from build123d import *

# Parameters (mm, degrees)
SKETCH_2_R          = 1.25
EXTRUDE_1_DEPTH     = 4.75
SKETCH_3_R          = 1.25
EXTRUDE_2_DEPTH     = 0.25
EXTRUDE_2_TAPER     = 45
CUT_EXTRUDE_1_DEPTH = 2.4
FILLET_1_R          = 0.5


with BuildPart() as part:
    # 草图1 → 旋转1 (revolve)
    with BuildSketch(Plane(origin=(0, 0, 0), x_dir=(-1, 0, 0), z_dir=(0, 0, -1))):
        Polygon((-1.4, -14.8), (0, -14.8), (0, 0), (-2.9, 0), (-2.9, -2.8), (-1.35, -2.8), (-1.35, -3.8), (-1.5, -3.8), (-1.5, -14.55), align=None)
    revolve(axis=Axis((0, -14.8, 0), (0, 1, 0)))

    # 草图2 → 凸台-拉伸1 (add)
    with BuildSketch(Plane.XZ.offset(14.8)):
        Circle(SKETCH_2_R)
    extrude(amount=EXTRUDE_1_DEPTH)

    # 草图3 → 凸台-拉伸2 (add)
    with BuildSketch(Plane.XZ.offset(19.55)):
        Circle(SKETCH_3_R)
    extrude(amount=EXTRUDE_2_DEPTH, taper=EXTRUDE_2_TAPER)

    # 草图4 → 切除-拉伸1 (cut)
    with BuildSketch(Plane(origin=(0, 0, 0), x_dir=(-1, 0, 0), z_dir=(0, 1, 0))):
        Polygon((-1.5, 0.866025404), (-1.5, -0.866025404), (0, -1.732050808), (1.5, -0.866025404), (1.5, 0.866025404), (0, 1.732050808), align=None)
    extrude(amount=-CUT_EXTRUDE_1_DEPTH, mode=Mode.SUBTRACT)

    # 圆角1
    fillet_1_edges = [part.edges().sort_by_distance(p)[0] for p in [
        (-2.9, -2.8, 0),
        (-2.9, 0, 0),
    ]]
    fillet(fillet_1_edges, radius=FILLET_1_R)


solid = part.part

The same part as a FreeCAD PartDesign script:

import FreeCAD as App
import Part
import Sketcher

V = App.Vector
Q = App.Units.Quantity


def edges_at(feature, points):
    """Names of the edges that pass closest to the given points."""
    edges = feature.Shape.Edges
    near = lambda p: min(range(len(edges)), key=lambda i: edges[i].distToShape(Part.Vertex(*p))[0])
    return sorted({f"Edge{near(p) + 1}" for p in points})


def add_polygon(sketch, points):
    """Adds a closed chain of lines whose ends are joined by coincident constraints."""
    first, n = sketch.GeometryCount, len(points)
    for a, b in zip(points, points[1:] + points[:1]):
        sketch.addGeometry(Part.LineSegment(App.Vector(*a, 0), App.Vector(*b, 0)), False)
    for i in range(n):
        sketch.addConstraint(Sketcher.Constraint("Coincident", first + i, 2, first + (i + 1) % n, 1))

doc = App.newDocument("Part")
params = doc.addObject("Spreadsheet::Sheet", "Params")
for row, (alias, value) in enumerate([
    ("sketch1_height", "1 mm"),
    ("sketch1_width", "1.4 mm"),
    ("sketch1_width2", "2.9 mm"),
    ("sketch1_height2", "14.8 mm"),
    ("sketch1_height3", "2.8 mm"),
    ("revolution_angle", "360 deg"),
    ("sketch2_diameter", "2.5 mm"),
    ("pad1_length", "4.75 mm"),
    ("sketch3_diameter", "2.5 mm"),
    ("pad2_length", "0.25 mm"),
    ("pad2_taper", "-45 deg"),
    ("pocket1_length", "2.4 mm"),
    ("fillet_radius", "0.5 mm"),
], start=1):
    params.set(f"A{row}", alias)
    params.set(f"B{row}", "=" + value)
    params.setAlias(f"B{row}", alias)

body = doc.addObject("PartDesign::Body", "Body")

# Sketch on XY plane
sketch1 = body.newObject("Sketcher::SketchObject", "Sketch")
sketch1.AttachmentSupport = (doc.getObject("XY_Plane"), [""])
sketch1.MapMode = "FlatFace"
add_polygon(sketch1, [(1.4, -14.8), (0, -14.8), (0, 0), (2.9, 0), (2.9, -2.8), (1.35, -2.8), (1.35, -3.8), (1.5, -3.8), (1.5, -14.55)])  # lines 0-8
sketch1.addConstraint([
    Sketcher.Constraint("Horizontal", 0),
    Sketcher.Constraint("Vertical", 1),
    Sketcher.Constraint("Horizontal", 2),
    Sketcher.Constraint("Vertical", 3),
    Sketcher.Constraint("Horizontal", 4),
    Sketcher.Constraint("Vertical", 5),
    Sketcher.Constraint("Horizontal", 6),
    Sketcher.Constraint("Vertical", 7),
    Sketcher.Constraint("Coincident", 1, 2, -1, 1),
    Sketcher.Constraint("DistanceY", 5, 2, 5, 1, 1.0),
    Sketcher.Constraint("DistanceX", 0, 2, 0, 1, 1.4),
    Sketcher.Constraint("DistanceX", 2, 1, 2, 2, 2.9),
    Sketcher.Constraint("DistanceY", 1, 1, 1, 2, 14.8),
    Sketcher.Constraint("DistanceY", 3, 2, 3, 1, 2.8),
    Sketcher.Constraint("DistanceX", 4, 2, 4, 1, 1.55),
    Sketcher.Constraint("DistanceX", 6, 1, 6, 2, 0.15),
    Sketcher.Constraint("DistanceY", 7, 2, 7, 1, 10.75),
])
sketch1.setExpression("Constraints[18]", "Params.sketch1_height")
sketch1.setExpression("Constraints[19]", "Params.sketch1_width")
sketch1.setExpression("Constraints[20]", "Params.sketch1_width2")
sketch1.setExpression("Constraints[21]", "Params.sketch1_height2")
sketch1.setExpression("Constraints[22]", "Params.sketch1_height3")
revolution = body.newObject("PartDesign::Revolution", "Revolution")
revolution.Profile = sketch1
revolution.ReferenceAxis = (sketch1, ["V_Axis"])
revolution.setExpression("Angle", "Params.revolution_angle")

# Sketch on XZ plane
sketch2 = body.newObject("Sketcher::SketchObject", "Sketch001")
sketch2.AttachmentSupport = (doc.getObject("XZ_Plane"), [""])
sketch2.MapMode = "FlatFace"
sketch2.AttachmentOffset = App.Placement(V(0, 0, 14.8), App.Rotation())
sketch2.addGeometry(Part.Circle(V(0, 0, 0), V(0, 0, 1), 1.25), False)
sketch2.addConstraint([
    Sketcher.Constraint("Coincident", 0, 3, -1, 1),
    Sketcher.Constraint("Diameter", 0, 2.5),
])
sketch2.setExpression("Constraints[1]", "Params.sketch2_diameter")
pad1 = body.newObject("PartDesign::Pad", "Pad")
pad1.Profile = sketch2
pad1.setExpression("Length", "Params.pad1_length")

# Sketch on XZ plane
sketch3 = body.newObject("Sketcher::SketchObject", "Sketch002")
sketch3.AttachmentSupport = (doc.getObject("XZ_Plane"), [""])
sketch3.MapMode = "FlatFace"
sketch3.AttachmentOffset = App.Placement(V(0, 0, 19.55), App.Rotation())
sketch3.addGeometry(Part.Circle(V(0, 0, 0), V(0, 0, 1), 1.25), False)
sketch3.addConstraint([
    Sketcher.Constraint("Coincident", 0, 3, -1, 1),
    Sketcher.Constraint("Diameter", 0, 2.5),
])
sketch3.setExpression("Constraints[1]", "Params.sketch3_diameter")
pad2 = body.newObject("PartDesign::Pad", "Pad001")
pad2.Profile = sketch3
pad2.setExpression("Length", "Params.pad2_length")
pad2.setExpression("TaperAngle", "Params.pad2_taper")

# Sketch on XZ plane
sketch4 = body.newObject("Sketcher::SketchObject", "Sketch003")
sketch4.AttachmentSupport = (doc.getObject("XZ_Plane"), [""])
sketch4.MapMode = "FlatFace"
add_polygon(sketch4, [(1.5, 0.866025), (1.5, -0.866025), (0, -1.732051), (-1.5, -0.866025), (-1.5, 0.866025), (0, 1.732051)])  # lines 0-5
sketch4.addConstraint([
    Sketcher.Constraint("Vertical", 0),
    Sketcher.Constraint("Vertical", 3),
    Sketcher.Constraint("Symmetric", 0, 2, 3, 2, -1, 1),
    Sketcher.Constraint("Symmetric", 1, 2, 4, 2, -1, 1),
    Sketcher.Constraint("PointOnObject", 1, 2, -2),
    Sketcher.Constraint("Parallel", 2, 5),
    Sketcher.Constraint("Horizontal", 0, 2, 2, 2),
    Sketcher.Constraint("Angle", 1, Q("-150 deg")),
    Sketcher.Constraint("DistanceX", 2, 2, 0, 2, 3.0),
    Sketcher.Constraint("DistanceY", 0, 2, 0, 1, 1.732051),
])
pocket1 = body.newObject("PartDesign::Pocket", "Pocket")
pocket1.Profile = sketch4
pocket1.setExpression("Length", "Params.pocket1_length")
pocket1.Reversed = True
doc.recompute()

fillet = body.newObject("PartDesign::Fillet", "Fillet")
fillet.Base = (pocket1, edges_at(pocket1, [(-2.9, -2.8, 0), (-2.9, 0, 0)]))
fillet.setExpression("Radius", "Params.fillet_radius")

doc.recompute()
